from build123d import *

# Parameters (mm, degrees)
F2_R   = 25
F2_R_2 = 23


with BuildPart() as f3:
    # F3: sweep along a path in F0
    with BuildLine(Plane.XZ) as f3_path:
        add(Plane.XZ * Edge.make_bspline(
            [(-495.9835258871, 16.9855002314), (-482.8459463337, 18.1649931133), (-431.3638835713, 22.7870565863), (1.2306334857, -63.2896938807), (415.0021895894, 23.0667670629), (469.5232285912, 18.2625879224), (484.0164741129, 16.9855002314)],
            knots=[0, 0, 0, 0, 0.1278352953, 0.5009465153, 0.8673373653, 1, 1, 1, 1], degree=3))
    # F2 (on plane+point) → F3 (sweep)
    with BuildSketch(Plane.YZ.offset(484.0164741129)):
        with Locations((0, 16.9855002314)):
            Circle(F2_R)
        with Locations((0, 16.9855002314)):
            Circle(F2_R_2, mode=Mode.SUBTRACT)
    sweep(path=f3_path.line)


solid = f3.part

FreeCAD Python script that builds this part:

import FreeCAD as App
import Part
import Sketcher

V = App.Vector
Q = App.Units.Quantity

doc = App.newDocument("Part")
body = doc.addObject("PartDesign::Body", "Body")

# Sketch on YZ plane
sketch1 = doc.addObject("Sketcher::SketchObject", "Sketch")
body.addObject(sketch1)
sketch1.AttachmentSupport = (doc.YZ_Plane, [""])
sketch1.MapMode = "FlatFace"
sketch1.AttachmentOffset = App.Placement(V(0, 0, 484.016474), App.Rotation())
sketch1.addGeometry(Part.Circle(V(0, 17, 0), V(0, 0, 1), 25), False)
sketch1.addGeometry(Part.Circle(V(0, 17, 0), V(0, 0, 1), 23), False)
sketch1.addConstraint(Sketcher.Constraint("Coincident", 1, 3, 0, 3))
sketch1.addConstraint(Sketcher.Constraint("PointOnObject", 0, 3, -2))
sketch1.addConstraint(Sketcher.Constraint("Diameter", 0, Q("50 mm")))
sketch1.addConstraint(Sketcher.Constraint("Diameter", 1, Q("46 mm")))
sketch1.addConstraint(Sketcher.Constraint("DistanceY", -1, 1, 0, 3, Q("16.9855 mm")))

# Sketch on XZ plane
sketch2 = doc.addObject("Sketcher::SketchObject", "Sketch001")
body.addObject(sketch2)
sketch2.AttachmentSupport = (doc.XZ_Plane, [""])
sketch2.MapMode = "FlatFace"
sketch2.addGeometry(Part.BSplineCurve([V(-495.983526, 16.9855, 0), V(-482.845946, 18.164993, 0), V(-431.363884, 22.787057, 0), V(1.230633, -63.289694, 0), V(415.00219, 23.066767, 0), V(469.523229, 18.262588, 0), V(484.016474, 16.9855, 0)], [4, 1, 1, 1, 4], [0, 0.127835295, 0.500946515, 0.867337365, 1], False, 3, [1, 1, 1, 1, 1, 1, 1], False), False)
sketch2.addConstraint(Sketcher.Constraint("Block", 0))
doc.recompute()

additivepipe = doc.addObject("PartDesign::AdditivePipe", "AdditivePipe")
body.addObject(additivepipe)
additivepipe.Profile = sketch1
additivepipe.Spine = (sketch2, ["Edge1"])

doc.recompute()
